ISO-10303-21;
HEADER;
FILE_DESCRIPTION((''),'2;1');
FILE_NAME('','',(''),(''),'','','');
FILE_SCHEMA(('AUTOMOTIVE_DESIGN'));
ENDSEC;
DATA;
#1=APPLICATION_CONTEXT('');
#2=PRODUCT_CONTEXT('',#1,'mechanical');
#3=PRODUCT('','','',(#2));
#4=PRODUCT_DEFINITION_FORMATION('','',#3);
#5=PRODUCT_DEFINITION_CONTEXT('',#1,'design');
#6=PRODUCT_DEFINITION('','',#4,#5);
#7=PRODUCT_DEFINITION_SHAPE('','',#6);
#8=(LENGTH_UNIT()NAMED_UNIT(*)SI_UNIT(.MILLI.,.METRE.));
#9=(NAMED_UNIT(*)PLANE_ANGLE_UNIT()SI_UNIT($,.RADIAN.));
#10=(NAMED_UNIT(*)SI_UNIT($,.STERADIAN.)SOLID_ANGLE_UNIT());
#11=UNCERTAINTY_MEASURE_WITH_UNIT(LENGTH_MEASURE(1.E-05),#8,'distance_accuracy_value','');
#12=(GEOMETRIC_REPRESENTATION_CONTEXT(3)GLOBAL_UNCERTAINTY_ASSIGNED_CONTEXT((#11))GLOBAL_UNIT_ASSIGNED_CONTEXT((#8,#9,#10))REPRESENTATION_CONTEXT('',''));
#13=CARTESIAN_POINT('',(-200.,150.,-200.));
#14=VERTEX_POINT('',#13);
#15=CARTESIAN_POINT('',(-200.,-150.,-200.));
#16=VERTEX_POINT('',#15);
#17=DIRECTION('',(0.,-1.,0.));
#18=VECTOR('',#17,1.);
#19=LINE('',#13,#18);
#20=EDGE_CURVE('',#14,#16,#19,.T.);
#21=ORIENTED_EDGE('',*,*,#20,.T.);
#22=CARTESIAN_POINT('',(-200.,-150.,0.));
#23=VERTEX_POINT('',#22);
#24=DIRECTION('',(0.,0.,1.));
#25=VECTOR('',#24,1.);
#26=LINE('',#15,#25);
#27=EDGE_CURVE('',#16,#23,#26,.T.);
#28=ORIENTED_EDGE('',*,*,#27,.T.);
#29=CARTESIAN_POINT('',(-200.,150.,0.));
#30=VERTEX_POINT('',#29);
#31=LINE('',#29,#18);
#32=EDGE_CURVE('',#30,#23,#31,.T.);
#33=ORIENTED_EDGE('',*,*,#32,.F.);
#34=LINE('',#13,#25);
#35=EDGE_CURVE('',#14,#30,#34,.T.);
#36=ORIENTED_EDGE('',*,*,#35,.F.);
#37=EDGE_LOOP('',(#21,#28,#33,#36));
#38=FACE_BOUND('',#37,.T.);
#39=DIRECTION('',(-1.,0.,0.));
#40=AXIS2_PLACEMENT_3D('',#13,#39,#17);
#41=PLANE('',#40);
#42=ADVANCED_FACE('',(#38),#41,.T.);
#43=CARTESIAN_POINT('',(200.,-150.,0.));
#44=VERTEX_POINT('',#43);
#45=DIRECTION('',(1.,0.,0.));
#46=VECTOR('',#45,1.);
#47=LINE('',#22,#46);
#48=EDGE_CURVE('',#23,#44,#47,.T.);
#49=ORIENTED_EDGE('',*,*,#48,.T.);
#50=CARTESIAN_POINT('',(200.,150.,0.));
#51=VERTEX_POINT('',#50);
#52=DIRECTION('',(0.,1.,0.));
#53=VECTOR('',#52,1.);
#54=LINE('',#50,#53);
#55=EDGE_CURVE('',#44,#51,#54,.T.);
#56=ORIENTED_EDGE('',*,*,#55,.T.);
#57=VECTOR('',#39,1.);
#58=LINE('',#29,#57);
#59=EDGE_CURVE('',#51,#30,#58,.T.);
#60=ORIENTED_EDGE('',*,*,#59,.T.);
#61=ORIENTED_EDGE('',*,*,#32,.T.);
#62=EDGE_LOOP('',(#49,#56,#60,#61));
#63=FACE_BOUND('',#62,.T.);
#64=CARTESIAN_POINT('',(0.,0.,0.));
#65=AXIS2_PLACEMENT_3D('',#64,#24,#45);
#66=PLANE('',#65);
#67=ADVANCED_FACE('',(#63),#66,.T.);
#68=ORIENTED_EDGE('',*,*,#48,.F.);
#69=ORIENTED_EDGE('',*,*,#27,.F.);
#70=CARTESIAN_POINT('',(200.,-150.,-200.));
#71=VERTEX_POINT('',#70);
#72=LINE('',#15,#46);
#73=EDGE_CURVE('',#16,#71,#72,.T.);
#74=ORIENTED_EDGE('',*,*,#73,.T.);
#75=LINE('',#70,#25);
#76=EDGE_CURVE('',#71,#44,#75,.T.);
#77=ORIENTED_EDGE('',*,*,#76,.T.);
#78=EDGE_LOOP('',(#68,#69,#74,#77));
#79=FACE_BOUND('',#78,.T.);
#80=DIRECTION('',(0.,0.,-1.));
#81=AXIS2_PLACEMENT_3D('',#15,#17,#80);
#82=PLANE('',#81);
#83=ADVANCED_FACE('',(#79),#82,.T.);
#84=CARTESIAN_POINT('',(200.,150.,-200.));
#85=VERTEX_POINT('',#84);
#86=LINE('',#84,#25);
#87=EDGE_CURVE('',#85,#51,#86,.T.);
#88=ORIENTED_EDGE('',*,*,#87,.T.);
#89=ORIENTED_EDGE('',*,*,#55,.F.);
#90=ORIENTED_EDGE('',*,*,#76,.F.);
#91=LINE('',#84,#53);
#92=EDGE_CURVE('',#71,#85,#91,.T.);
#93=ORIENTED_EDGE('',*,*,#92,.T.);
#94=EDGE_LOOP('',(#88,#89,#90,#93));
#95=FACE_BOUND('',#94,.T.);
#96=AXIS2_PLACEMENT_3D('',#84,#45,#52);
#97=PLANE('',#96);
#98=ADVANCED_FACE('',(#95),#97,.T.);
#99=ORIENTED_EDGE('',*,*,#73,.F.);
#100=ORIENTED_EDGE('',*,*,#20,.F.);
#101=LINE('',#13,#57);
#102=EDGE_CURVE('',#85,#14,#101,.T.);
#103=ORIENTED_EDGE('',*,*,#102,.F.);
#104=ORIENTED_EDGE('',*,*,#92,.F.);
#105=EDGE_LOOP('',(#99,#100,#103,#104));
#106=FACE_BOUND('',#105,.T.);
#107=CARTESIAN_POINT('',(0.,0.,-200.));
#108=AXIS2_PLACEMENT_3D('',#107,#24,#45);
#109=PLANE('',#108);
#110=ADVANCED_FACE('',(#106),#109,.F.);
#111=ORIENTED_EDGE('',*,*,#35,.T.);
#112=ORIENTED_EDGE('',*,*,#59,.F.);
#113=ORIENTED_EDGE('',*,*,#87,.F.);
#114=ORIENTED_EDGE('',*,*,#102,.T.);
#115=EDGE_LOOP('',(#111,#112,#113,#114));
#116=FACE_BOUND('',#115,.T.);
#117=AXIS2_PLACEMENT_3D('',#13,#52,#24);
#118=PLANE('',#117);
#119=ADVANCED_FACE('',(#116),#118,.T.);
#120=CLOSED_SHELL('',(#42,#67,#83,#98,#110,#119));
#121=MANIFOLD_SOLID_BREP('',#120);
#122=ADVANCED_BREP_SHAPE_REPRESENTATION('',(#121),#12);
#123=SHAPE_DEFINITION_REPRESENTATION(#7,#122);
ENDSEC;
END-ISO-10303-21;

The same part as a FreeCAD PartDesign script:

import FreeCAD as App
import Part
import Sketcher

doc = App.newDocument("Part")
body = doc.addObject("PartDesign::Body", "Body")

# Sketch on XY plane
sketch1 = body.newObject("Sketcher::SketchObject", "Sketch")
sketch1.AttachmentSupport = (doc.getObject("XY_Plane"), [""])
sketch1.MapMode = "FlatFace"
sketch1.addGeometry([
    Part.LineSegment(App.Vector(-200, 150, 0), App.Vector(-200, -150, 0)),
    Part.LineSegment(App.Vector(-200, -150, 0), App.Vector(200, -150, 0)),
    Part.LineSegment(App.Vector(200, -150, 0), App.Vector(200, 150, 0)),
    Part.LineSegment(App.Vector(200, 150, 0), App.Vector(-200, 150, 0)),
], False)
sketch1.addConstraint([
    Sketcher.Constraint("Coincident", 0, 2, 1, 1),
    Sketcher.Constraint("Coincident", 1, 2, 2, 1),
    Sketcher.Constraint("Coincident", 2, 2, 3, 1),
    Sketcher.Constraint("Coincident", 3, 2, 0, 1),
    Sketcher.Constraint("Vertical", 0),
    Sketcher.Constraint("Horizontal", 1),
    Sketcher.Constraint("Vertical", 2),
    Sketcher.Constraint("Horizontal", 3),
    Sketcher.Constraint("Symmetric", 0, 2, 2, 2, -1, 1),
    Sketcher.Constraint("DistanceX", 1, 1, 1, 2, 400.0),
    Sketcher.Constraint("DistanceY", 0, 2, 0, 1, 300.0),
])
pad1 = body.newObject("PartDesign::Pad", "Pad")
pad1.Profile = sketch1
pad1.Length = 200
pad1.Reversed = True

doc.recompute()
